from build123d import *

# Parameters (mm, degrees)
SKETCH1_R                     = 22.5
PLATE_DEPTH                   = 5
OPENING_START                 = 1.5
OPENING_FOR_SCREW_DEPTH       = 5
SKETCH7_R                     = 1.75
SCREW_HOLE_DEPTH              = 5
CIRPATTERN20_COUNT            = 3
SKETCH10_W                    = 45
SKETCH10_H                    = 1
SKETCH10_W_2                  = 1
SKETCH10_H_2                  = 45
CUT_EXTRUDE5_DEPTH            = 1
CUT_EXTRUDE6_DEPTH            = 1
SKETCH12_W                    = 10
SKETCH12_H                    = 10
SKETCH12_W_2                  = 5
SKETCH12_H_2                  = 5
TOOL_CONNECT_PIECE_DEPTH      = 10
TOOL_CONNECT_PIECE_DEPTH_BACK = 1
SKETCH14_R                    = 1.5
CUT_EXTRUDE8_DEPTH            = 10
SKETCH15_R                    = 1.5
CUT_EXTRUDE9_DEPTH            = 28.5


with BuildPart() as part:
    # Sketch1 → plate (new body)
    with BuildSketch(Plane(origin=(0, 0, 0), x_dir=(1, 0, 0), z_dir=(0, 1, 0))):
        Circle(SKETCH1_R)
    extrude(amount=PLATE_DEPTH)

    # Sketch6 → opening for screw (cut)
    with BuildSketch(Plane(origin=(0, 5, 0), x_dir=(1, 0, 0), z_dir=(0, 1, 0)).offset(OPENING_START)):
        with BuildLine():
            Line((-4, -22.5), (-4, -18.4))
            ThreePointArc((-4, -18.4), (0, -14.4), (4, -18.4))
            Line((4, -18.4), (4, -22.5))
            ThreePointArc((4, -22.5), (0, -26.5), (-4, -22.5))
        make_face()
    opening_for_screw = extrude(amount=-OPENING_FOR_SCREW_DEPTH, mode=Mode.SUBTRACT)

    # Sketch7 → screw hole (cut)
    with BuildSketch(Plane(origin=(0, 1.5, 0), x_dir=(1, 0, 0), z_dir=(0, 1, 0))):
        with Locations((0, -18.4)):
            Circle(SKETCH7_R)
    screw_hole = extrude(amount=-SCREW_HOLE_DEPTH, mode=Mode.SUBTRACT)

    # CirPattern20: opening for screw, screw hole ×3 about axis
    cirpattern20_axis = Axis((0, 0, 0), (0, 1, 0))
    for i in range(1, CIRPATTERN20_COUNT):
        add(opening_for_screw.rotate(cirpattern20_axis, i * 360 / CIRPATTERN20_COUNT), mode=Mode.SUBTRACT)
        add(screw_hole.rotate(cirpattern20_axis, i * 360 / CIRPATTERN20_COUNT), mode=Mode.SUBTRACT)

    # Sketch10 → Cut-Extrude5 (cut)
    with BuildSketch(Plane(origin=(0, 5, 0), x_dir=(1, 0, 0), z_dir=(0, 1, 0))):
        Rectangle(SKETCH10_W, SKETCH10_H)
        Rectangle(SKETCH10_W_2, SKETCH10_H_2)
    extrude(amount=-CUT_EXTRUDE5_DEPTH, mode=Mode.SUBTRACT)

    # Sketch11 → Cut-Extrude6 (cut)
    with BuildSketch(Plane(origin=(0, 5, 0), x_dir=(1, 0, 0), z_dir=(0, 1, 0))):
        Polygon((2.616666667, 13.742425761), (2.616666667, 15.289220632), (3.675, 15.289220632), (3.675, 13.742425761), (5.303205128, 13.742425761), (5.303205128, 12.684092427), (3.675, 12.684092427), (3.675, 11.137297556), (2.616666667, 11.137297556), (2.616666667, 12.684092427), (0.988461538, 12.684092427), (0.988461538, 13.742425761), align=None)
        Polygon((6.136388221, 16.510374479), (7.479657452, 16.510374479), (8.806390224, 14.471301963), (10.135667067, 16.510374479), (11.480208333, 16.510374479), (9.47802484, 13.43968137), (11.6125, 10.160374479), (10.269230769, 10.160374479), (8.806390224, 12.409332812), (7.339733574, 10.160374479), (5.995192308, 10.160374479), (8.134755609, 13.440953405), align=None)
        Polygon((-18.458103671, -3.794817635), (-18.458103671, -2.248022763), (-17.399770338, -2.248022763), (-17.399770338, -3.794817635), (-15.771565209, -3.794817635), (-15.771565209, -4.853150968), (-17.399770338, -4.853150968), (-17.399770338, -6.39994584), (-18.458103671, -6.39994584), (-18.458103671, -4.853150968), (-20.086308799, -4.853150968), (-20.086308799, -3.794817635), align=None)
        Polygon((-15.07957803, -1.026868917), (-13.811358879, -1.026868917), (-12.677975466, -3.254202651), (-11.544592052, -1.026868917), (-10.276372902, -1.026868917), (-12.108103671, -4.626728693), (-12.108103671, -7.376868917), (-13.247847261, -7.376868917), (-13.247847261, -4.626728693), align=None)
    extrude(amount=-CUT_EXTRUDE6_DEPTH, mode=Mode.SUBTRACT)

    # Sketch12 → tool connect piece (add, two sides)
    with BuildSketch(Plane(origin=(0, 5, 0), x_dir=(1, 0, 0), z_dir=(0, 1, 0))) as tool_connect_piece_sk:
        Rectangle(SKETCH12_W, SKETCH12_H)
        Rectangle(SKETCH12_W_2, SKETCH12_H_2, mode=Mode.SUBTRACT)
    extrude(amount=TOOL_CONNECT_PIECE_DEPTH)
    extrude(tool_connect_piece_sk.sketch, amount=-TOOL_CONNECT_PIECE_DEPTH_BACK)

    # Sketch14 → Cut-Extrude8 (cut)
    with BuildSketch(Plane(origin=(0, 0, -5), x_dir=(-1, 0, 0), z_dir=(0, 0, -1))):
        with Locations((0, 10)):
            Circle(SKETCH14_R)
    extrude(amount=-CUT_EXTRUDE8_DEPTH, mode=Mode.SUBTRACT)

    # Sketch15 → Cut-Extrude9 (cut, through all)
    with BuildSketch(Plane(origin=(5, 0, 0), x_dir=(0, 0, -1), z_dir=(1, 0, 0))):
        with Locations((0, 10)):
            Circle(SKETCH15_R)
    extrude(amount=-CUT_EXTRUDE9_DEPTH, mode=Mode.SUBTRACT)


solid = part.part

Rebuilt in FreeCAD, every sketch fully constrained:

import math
import FreeCAD as App
import Part
import Sketcher
from FreeCAD import Vector
Q = App.Units.Quantity


def add_polygon(sketch, points):
    """Adds a closed chain of lines whose ends are joined by coincident constraints."""
    first, n = sketch.GeometryCount, len(points)
    for a, b in zip(points, points[1:] + points[:1]):
        sketch.addGeometry(Part.LineSegment(App.Vector(*a, 0), App.Vector(*b, 0)), False)
    for i in range(n):
        sketch.addConstraint(Sketcher.Constraint("Coincident", first + i, 2, first + (i + 1) % n, 1))

doc = App.newDocument("Part")
body = doc.addObject("PartDesign::Body", "Body")

sketch1 = body.newObject("Sketcher::SketchObject", "Sketch")
sketch1.AttachmentSupport = (doc.getObject("XZ_Plane"), [""])
sketch1.MapMode = "FlatFace"
sketch1.addGeometry(Part.Circle(Vector(0, 0, 0), Vector(0, 0, 1), 22), False)
sketch1.addConstraint([
    Sketcher.Constraint("Coincident", 0, 3, -1, 1),
    Sketcher.Constraint("Diameter", 0, Q("45 mm")),
])
pad1 = body.newObject("PartDesign::Pad", "Pad")
pad1.Profile = sketch1
pad1.Length = 5
pad1.Reversed = True

sketch2 = body.newObject("Sketcher::SketchObject", "Sketch001")
sketch2.AttachmentSupport = (doc.getObject("XZ_Plane"), [""])
sketch2.MapMode = "FlatFace"
sketch2.AttachmentOffset = App.Placement(Vector(0, 0, -6.5), App.Rotation())
sketch2.addGeometry([
    Part.LineSegment(Vector(-4, 18.4, 0), Vector(-4, 22.5, 0)),
    Part.ArcOfCircle(Part.Circle(Vector(0, 22.5, 0), Vector(0, 0, 1), 4), math.radians(0), math.radians(180)),
    Part.LineSegment(Vector(4, 22.5, 0), Vector(4, 18.4, 0)),
    Part.ArcOfCircle(Part.Circle(Vector(0, 18.4, 0), Vector(0, 0, 1), 4), math.radians(180), math.radians(360)),
], False)
sketch2.addConstraint([
    Sketcher.Constraint("Tangent", 0, 2, 1, 2),
    Sketcher.Constraint("Tangent", 1, 1, 2, 1),
    Sketcher.Constraint("Tangent", 2, 2, 3, 2),
    Sketcher.Constraint("Tangent", 3, 1, 0, 1),
    Sketcher.Constraint("Vertical", 0),
    Sketcher.Constraint("Vertical", 2),
    Sketcher.Constraint("PointOnObject", 1, 3, -2),
    Sketcher.Constraint("Radius", 1, Q("4 mm")),
    Sketcher.Constraint("DistanceY", 0, 1, 0, 2, Q("4.1 mm")),
    Sketcher.Constraint("DistanceY", -1, 1, 1, 3, Q("22.5 mm")),
])
pocket1 = body.newObject("PartDesign::Pocket", "Pocket")
pocket1.Profile = sketch2
pocket1.Length = 5
pocket1.Reversed = True

sketch3 = body.newObject("Sketcher::SketchObject", "Sketch002")
sketch3.AttachmentSupport = (doc.getObject("XZ_Plane"), [""])
sketch3.MapMode = "FlatFace"
sketch3.AttachmentOffset = App.Placement(Vector(0, 0, -1.5), App.Rotation())
sketch3.addGeometry(Part.Circle(Vector(0, 18.4, 0), Vector(0, 0, 1), 1.8), False)
sketch3.addConstraint([
    Sketcher.Constraint("PointOnObject", 0, 3, -2),
    Sketcher.Constraint("Diameter", 0, Q("3.5 mm")),
    Sketcher.Constraint("DistanceY", -1, 1, 0, 3, Q("18.4 mm")),
])
pocket2 = body.newObject("PartDesign::Pocket", "Pocket001")
pocket2.Profile = sketch3
pocket2.Length = 5
pocket2.Reversed = True
doc.recompute()

polarpattern = body.newObject("PartDesign::PolarPattern", "PolarPattern")
polarpattern.Originals = [pocket1, pocket2]
polarpattern.Axis = (doc.getObject("Y_Axis"), [""])
polarpattern.Angle = 360
polarpattern.Occurrences = 3
body.Tip = polarpattern

sketch4 = body.newObject("Sketcher::SketchObject", "Sketch003")
sketch4.AttachmentSupport = (doc.getObject("XZ_Plane"), [""])
sketch4.MapMode = "FlatFace"
sketch4.AttachmentOffset = App.Placement(Vector(0, 0, -5), App.Rotation())
add_polygon(sketch4, [(-22.5, -0.5), (-22.5, 0.5), (-0.5, 0.5), (-0.5, 22.5), (0.5, 22.5), (0.5, 0.5), (22.5, 0.5), (22.5, -0.5), (0.5, -0.5), (0.5, -22.5), (-0.5, -22.5), (-0.5, -0.5)])
sketch4.addConstraint([
    Sketcher.Constraint("Vertical", 0),
    Sketcher.Constraint("Horizontal", 1),
    Sketcher.Constraint("Vertical", 2),
    Sketcher.Constraint("Horizontal", 3),
    Sketcher.Constraint("Vertical", 4),
    Sketcher.Constraint("Horizontal", 5),
    Sketcher.Constraint("Vertical", 6),
    Sketcher.Constraint("Horizontal", 7),
    Sketcher.Constraint("Vertical", 8),
    Sketcher.Constraint("Horizontal", 9),
    Sketcher.Constraint("Vertical", 10),
    Sketcher.Constraint("Horizontal", 11),
    Sketcher.Constraint("Symmetric", 0, 2, 6, 2, -1, 1),
    Sketcher.Constraint("Symmetric", 2, 2, 8, 2, -1, 1),
    Sketcher.Constraint("Symmetric", 4, 2, 10, 2, -1, 1),
    Sketcher.Constraint("Symmetric", 1, 2, 4, 2, -2),
    Sketcher.Constraint("Equal", 9, 0),
    Sketcher.Constraint("Equal", 11, 2),
    Sketcher.Constraint("DistanceX", 1, 1, 1, 2, Q("22 mm")),
    Sketcher.Constraint("DistanceX", 3, 1, 3, 2, Q("1 mm")),
])
pocket3 = body.newObject("PartDesign::Pocket", "Pocket002")
pocket3.Profile = sketch4
pocket3.Length = 1
pocket3.Reversed = True

sketch5 = body.newObject("Sketcher::SketchObject", "Sketch004")
sketch5.AttachmentSupport = (doc.getObject("XZ_Plane"), [""])
sketch5.MapMode = "FlatFace"
sketch5.AttachmentOffset = App.Placement(Vector(0, 0, -5), App.Rotation())
add_polygon(sketch5, [(2.6, -15.3), (2.6, -13.7), (1, -13.7), (1, -12.7), (2.6, -12.7), (2.6, -11.1), (3.7, -11.1), (3.7, -12.7), (5.3, -12.7), (5.3, -13.7), (3.7, -13.7), (3.7, -15.3)])
add_polygon(sketch5, [(7.5, -16.5), (6.1, -16.5), (8.1, -13.4), (6, -10.2), (7.3, -10.2), (8.8, -12.4), (10.3, -10.2), (11.6, -10.2), (9.5, -13.4), (11.5, -16.5), (10.1, -16.5), (8.8, -14.5)])
add_polygon(sketch5, [(-18.5, 2.2), (-18.5, 3.8), (-20.1, 3.8), (-20.1, 4.9), (-18.5, 4.9), (-18.5, 6.4), (-17.4, 6.4), (-17.4, 4.9), (-15.8, 4.9), (-15.8, 3.8), (-17.4, 3.8), (-17.4, 2.2)])
add_polygon(sketch5, [(-13.8, 1), (-15.1, 1), (-13.2, 4.6), (-13.2, 7.4), (-12.1, 7.4), (-12.1, 4.6), (-10.3, 1), (-11.5, 1), (-12.7, 3.3)])
sketch5.addConstraint([
    Sketcher.Constraint("Vertical", 0),
    Sketcher.Constraint("Horizontal", 1),
    Sketcher.Constraint("Vertical", 2),
    Sketcher.Constraint("Horizontal", 3),
    Sketcher.Constraint("Vertical", 4),
    Sketcher.Constraint("Horizontal", 5),
    Sketcher.Constraint("Vertical", 6),
    Sketcher.Constraint("Horizontal", 7),
    Sketcher.Constraint("Vertical", 8),
    Sketcher.Constraint("Horizontal", 9),
    Sketcher.Constraint("Vertical", 10),
    Sketcher.Constraint("Horizontal", 11),
    Sketcher.Constraint("Horizontal", 12),
    Sketcher.Constraint("Horizontal", 15),
    Sketcher.Constraint("Horizontal", 18),
    Sketcher.Constraint("Horizontal", 21),
    Sketcher.Constraint("Vertical", 24),
    Sketcher.Constraint("Horizontal", 25),
    Sketcher.Constraint("Vertical", 26),
    Sketcher.Constraint("Horizontal", 27),
    Sketcher.Constraint("Vertical", 28),
    Sketcher.Constraint("Horizontal", 29),
    Sketcher.Constraint("Vertical", 30),
    Sketcher.Constraint("Horizontal", 31),
    Sketcher.Constraint("Vertical", 32),
    Sketcher.Constraint("Horizontal", 33),
    Sketcher.Constraint("Vertical", 34),
    Sketcher.Constraint("Horizontal", 35),
    Sketcher.Constraint("Horizontal", 36),
    Sketcher.Constraint("Vertical", 38),
    Sketcher.Constraint("Horizontal", 39),
    Sketcher.Constraint("Vertical", 40),
    Sketcher.Constraint("Horizontal", 42),
    Sketcher.Constraint("Horizontal", 3, 2, 6, 2),
    Sketcher.Constraint("Horizontal", 1, 2, 8, 2),
    Sketcher.Constraint("Horizontal", 15, 2, 17, 2),
    Sketcher.Constraint("Horizontal", 12, 2, 20, 2),
    Sketcher.Constraint("Horizontal", 27, 2, 30, 2),
    Sketcher.Constraint("Horizontal", 25, 2, 32, 2),
    Sketcher.Constraint("Horizontal", 37, 2, 40, 2),
    Sketcher.Constraint("Horizontal", 36, 2, 41, 2),
    Sketcher.Constraint("Vertical", 0, 2, 3, 2),
    Sketcher.Constraint("Vertical", 6, 2, 9, 2),
    Sketcher.Constraint("Vertical", 16, 2, 22, 2),
    Sketcher.Constraint("Vertical", 24, 2, 27, 2),
    Sketcher.Constraint("Vertical", 30, 2, 33, 2),
    Sketcher.Constraint("Equal", 3, 7),
    Sketcher.Constraint("Equal", 12, 18),
    Sketcher.Constraint("Equal", 15, 21),
    Sketcher.Constraint("Equal", 9, 25),
    Sketcher.Constraint("Equal", 11, 29),
    Sketcher.Constraint("Equal", 27, 31),
    Sketcher.Constraint("Equal", 36, 42),
    Sketcher.Constraint("Equal", 35, 2),
    Sketcher.Constraint("Equal", 0, 4),
    Sketcher.Constraint("Equal", 10, 24),
    Sketcher.Constraint("Equal", 8, 26),
    Sketcher.Constraint("Equal", 24, 28),
    Sketcher.Constraint("Equal", 37, 41),
    Sketcher.Constraint("Equal", 43, 44),
    Sketcher.Constraint("DistanceY", 20, 2, 18, 2, Q("6.35 mm")),
    Sketcher.Constraint("DistanceY", 41, 2, 39, 2, Q("6.35 mm")),
    Sketcher.Constraint("DistanceX", -1, 1, 5, 2, Q("3.675 mm")),
    Sketcher.Constraint("Distance", 23, Q("2.432701 mm")),
    Sketcher.Constraint("DistanceX", 12, 2, 12, 1, Q("1.343269 mm")),
    Sketcher.Constraint("DistanceX", 15, 1, 15, 2, Q("1.344541 mm")),
    Sketcher.Constraint("DistanceX", 36, 2, 36, 1, Q("1.268219 mm")),
    Sketcher.Constraint("DistanceY", 38, 1, 38, 2, Q("2.75014 mm")),
    Sketcher.Constraint("DistanceX", -1, 1, 18, 2, Q("11.6125 mm")),
    Sketcher.Constraint("DistanceY", 22, 2, -1, 1, Q("14.471302 mm")),
    Sketcher.Constraint("DistanceX", 23, 2, 13, 2, Q("0.655098 mm")),
    Sketcher.Constraint("Distance", 16, Q("2.684939 mm")),
    Sketcher.Constraint("Distance", 19, Q("3.912779 mm")),
    Sketcher.Constraint("Distance", 22, Q("2.43409 mm")),
    Sketcher.Constraint("DistanceX", 1, 2, 1, 1, Q("1.628205 mm")),
    Sketcher.Constraint("DistanceX", 5, 1, 5, 2, Q("1.058333 mm")),
    Sketcher.Constraint("DistanceX", 39, 1, 39, 2, Q("1.139744 mm")),
    Sketcher.Constraint("DistanceY", 0, 1, 0, 2, Q("1.546795 mm")),
    Sketcher.Constraint("DistanceY", 10, 2, -1, 1, Q("15.289221 mm")),
    Sketcher.Constraint("DistanceX", -1, 1, 12, 2, Q("6.136388 mm")),
    Sketcher.Constraint("DistanceX", -1, 1, 16, 2, Q("8.80639 mm")),
    Sketcher.Constraint("DistanceY", 19, 2, -1, 1, Q("13.439681 mm")),
    Sketcher.Constraint("DistanceX", 25, 2, -1, 1, Q("20.086309 mm")),
    Sketcher.Constraint("DistanceY", -1, 1, 26, 2, Q("4.853151 mm")),
    Sketcher.Constraint("DistanceX", 36, 2, -1, 1, Q("15.079578 mm")),
    Sketcher.Constraint("DistanceY", -1, 1, 36, 2, Q("1.026869 mm")),
    Sketcher.Constraint("DistanceY", 13, 2, 7, 2, Q("0.756861 mm")),
    Sketcher.Constraint("DistanceX", 7, 2, 15, 2, Q("2.036528 mm")),
    Sketcher.Constraint("DistanceX", 36, 2, 37, 2, Q("1.831731 mm")),
    Sketcher.Constraint("Distance", 43, Q("2.499115 mm")),
])
pocket4 = body.newObject("PartDesign::Pocket", "Pocket003")
pocket4.Profile = sketch5
pocket4.Length = 1
pocket4.Reversed = True

sketch6 = body.newObject("Sketcher::SketchObject", "Sketch005")
sketch6.AttachmentSupport = (doc.getObject("XZ_Plane"), [""])
sketch6.MapMode = "FlatFace"
sketch6.AttachmentOffset = App.Placement(Vector(0, 0, -5), App.Rotation())
add_polygon(sketch6, [(-5, -5), (-5, 5), (5, 5), (5, -5)])
add_polygon(sketch6, [(2, 2), (-2, 2), (-2, -2), (2, -2)])
sketch6.addConstraint([
    Sketcher.Constraint("Vertical", 0),
    Sketcher.Constraint("Horizontal", 1),
    Sketcher.Constraint("Vertical", 2),
    Sketcher.Constraint("Horizontal", 3),
    Sketcher.Constraint("Horizontal", 4),
    Sketcher.Constraint("Vertical", 5),
    Sketcher.Constraint("Horizontal", 6),
    Sketcher.Constraint("Vertical", 7),
    Sketcher.Constraint("Symmetric", 0, 2, 2, 2, -1, 1),
    Sketcher.Constraint("Symmetric", 4, 2, 6, 2, -1, 1),
    Sketcher.Constraint("Equal", 3, 0),
    Sketcher.Constraint("Equal", 6, 5),
    Sketcher.Constraint("DistanceX", 1, 1, 1, 2, Q("10 mm")),
    Sketcher.Constraint("DistanceX", 4, 2, 4, 1, Q("5 mm")),
])
pad2 = body.newObject("PartDesign::Pad", "Pad001")
pad2.Profile = sketch6
pad2.Type = "TwoLengths"
pad2.Length = 10
pad2.Length2 = 1
pad2.Reversed = True

sketch7 = body.newObject("Sketcher::SketchObject", "Sketch006")
sketch7.AttachmentSupport = (doc.getObject("XY_Plane"), [""])
sketch7.MapMode = "FlatFace"
sketch7.AttachmentOffset = App.Placement(Vector(0, 0, -5), App.Rotation())
sketch7.addGeometry(Part.Circle(Vector(0, 10, 0), Vector(0, 0, 1), 1.5), False)
sketch7.addConstraint([
    Sketcher.Constraint("PointOnObject", 0, 3, -2),
    Sketcher.Constraint("Diameter", 0, Q("3 mm")),
    Sketcher.Constraint("DistanceY", -1, 1, 0, 3, Q("10 mm")),
])
pocket5 = body.newObject("PartDesign::Pocket", "Pocket004")
pocket5.Profile = sketch7
pocket5.Length = 10
pocket5.Reversed = True

sketch8 = body.newObject("Sketcher::SketchObject", "Sketch007")
sketch8.AttachmentSupport = (doc.getObject("YZ_Plane"), [""])
sketch8.MapMode = "FlatFace"
sketch8.AttachmentOffset = App.Placement(Vector(0, 0, 5), App.Rotation())
sketch8.addGeometry(Part.Circle(Vector(10, 0, 0), Vector(0, 0, 1), 1.5), False)
sketch8.addConstraint([
    Sketcher.Constraint("PointOnObject", 0, 3, -1),
    Sketcher.Constraint("Diameter", 0, Q("3 mm")),
    Sketcher.Constraint("DistanceX", -1, 1, 0, 3, Q("10 mm")),
])
pocket6 = body.newObject("PartDesign::Pocket", "Pocket005")
pocket6.Profile = sketch8
pocket6.Type = "ThroughAll"

doc.recompute()
